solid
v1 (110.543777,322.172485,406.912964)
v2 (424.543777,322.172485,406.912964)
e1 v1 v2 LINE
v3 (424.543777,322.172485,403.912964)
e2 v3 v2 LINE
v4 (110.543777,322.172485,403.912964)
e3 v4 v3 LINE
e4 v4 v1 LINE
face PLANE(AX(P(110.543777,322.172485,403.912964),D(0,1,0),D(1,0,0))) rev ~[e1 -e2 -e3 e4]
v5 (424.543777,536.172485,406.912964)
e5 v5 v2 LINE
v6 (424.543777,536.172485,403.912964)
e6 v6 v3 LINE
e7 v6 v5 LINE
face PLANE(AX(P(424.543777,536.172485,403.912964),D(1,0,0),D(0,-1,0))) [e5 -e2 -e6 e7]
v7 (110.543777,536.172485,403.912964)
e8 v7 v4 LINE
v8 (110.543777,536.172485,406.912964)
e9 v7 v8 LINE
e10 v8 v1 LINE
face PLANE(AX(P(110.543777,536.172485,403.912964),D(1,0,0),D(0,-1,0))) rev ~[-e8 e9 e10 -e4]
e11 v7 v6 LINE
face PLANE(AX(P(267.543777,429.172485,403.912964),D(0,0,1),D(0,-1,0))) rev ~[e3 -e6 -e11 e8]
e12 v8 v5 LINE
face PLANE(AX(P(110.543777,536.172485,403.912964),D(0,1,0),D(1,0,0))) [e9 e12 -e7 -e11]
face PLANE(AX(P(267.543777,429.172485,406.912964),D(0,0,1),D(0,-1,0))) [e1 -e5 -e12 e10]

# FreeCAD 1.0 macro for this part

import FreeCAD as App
import Part
import Sketcher
from FreeCAD import Vector


def add_polygon(sketch, points):
    """Adds a closed chain of lines whose ends are joined by coincident constraints."""
    first, n = sketch.GeometryCount, len(points)
    for a, b in zip(points, points[1:] + points[:1]):
        sketch.addGeometry(Part.LineSegment(App.Vector(*a, 0), App.Vector(*b, 0)), False)
    for i in range(n):
        sketch.addConstraint(Sketcher.Constraint("Coincident", first + i, 2, first + (i + 1) % n, 1))

doc = App.newDocument("Part")
body = doc.addObject("PartDesign::Body", "Body")

sketch1 = body.newObject("Sketcher::SketchObject", "Sketch")
sketch1.AttachmentSupport = (doc.getObject("XY_Plane"), [""])
sketch1.MapMode = "FlatFace"
sketch1.AttachmentOffset = App.Placement(Vector(0, 0, 403.912964), App.Rotation())
add_polygon(sketch1, [(425, 536), (111, 536), (111, 322), (425, 322)])
sketch1.addConstraint([
    Sketcher.Constraint("Horizontal", 0),
    Sketcher.Constraint("Vertical", 1),
    Sketcher.Constraint("Horizontal", 2),
    Sketcher.Constraint("Vertical", 3),
    Sketcher.Constraint("DistanceX", 0, 2, 0, 1, 314.0),
    Sketcher.Constraint("DistanceY", 1, 2, 1, 1, 214.0),
    Sketcher.Constraint("DistanceX", -1, 1, 0, 2, 110.543777),
    Sketcher.Constraint("DistanceY", -1, 1, 0, 2, 536.172485),
])
pad1 = body.newObject("PartDesign::Pad", "Pad")
pad1.Profile = sketch1
pad1.Length = 3

doc.recompute()
